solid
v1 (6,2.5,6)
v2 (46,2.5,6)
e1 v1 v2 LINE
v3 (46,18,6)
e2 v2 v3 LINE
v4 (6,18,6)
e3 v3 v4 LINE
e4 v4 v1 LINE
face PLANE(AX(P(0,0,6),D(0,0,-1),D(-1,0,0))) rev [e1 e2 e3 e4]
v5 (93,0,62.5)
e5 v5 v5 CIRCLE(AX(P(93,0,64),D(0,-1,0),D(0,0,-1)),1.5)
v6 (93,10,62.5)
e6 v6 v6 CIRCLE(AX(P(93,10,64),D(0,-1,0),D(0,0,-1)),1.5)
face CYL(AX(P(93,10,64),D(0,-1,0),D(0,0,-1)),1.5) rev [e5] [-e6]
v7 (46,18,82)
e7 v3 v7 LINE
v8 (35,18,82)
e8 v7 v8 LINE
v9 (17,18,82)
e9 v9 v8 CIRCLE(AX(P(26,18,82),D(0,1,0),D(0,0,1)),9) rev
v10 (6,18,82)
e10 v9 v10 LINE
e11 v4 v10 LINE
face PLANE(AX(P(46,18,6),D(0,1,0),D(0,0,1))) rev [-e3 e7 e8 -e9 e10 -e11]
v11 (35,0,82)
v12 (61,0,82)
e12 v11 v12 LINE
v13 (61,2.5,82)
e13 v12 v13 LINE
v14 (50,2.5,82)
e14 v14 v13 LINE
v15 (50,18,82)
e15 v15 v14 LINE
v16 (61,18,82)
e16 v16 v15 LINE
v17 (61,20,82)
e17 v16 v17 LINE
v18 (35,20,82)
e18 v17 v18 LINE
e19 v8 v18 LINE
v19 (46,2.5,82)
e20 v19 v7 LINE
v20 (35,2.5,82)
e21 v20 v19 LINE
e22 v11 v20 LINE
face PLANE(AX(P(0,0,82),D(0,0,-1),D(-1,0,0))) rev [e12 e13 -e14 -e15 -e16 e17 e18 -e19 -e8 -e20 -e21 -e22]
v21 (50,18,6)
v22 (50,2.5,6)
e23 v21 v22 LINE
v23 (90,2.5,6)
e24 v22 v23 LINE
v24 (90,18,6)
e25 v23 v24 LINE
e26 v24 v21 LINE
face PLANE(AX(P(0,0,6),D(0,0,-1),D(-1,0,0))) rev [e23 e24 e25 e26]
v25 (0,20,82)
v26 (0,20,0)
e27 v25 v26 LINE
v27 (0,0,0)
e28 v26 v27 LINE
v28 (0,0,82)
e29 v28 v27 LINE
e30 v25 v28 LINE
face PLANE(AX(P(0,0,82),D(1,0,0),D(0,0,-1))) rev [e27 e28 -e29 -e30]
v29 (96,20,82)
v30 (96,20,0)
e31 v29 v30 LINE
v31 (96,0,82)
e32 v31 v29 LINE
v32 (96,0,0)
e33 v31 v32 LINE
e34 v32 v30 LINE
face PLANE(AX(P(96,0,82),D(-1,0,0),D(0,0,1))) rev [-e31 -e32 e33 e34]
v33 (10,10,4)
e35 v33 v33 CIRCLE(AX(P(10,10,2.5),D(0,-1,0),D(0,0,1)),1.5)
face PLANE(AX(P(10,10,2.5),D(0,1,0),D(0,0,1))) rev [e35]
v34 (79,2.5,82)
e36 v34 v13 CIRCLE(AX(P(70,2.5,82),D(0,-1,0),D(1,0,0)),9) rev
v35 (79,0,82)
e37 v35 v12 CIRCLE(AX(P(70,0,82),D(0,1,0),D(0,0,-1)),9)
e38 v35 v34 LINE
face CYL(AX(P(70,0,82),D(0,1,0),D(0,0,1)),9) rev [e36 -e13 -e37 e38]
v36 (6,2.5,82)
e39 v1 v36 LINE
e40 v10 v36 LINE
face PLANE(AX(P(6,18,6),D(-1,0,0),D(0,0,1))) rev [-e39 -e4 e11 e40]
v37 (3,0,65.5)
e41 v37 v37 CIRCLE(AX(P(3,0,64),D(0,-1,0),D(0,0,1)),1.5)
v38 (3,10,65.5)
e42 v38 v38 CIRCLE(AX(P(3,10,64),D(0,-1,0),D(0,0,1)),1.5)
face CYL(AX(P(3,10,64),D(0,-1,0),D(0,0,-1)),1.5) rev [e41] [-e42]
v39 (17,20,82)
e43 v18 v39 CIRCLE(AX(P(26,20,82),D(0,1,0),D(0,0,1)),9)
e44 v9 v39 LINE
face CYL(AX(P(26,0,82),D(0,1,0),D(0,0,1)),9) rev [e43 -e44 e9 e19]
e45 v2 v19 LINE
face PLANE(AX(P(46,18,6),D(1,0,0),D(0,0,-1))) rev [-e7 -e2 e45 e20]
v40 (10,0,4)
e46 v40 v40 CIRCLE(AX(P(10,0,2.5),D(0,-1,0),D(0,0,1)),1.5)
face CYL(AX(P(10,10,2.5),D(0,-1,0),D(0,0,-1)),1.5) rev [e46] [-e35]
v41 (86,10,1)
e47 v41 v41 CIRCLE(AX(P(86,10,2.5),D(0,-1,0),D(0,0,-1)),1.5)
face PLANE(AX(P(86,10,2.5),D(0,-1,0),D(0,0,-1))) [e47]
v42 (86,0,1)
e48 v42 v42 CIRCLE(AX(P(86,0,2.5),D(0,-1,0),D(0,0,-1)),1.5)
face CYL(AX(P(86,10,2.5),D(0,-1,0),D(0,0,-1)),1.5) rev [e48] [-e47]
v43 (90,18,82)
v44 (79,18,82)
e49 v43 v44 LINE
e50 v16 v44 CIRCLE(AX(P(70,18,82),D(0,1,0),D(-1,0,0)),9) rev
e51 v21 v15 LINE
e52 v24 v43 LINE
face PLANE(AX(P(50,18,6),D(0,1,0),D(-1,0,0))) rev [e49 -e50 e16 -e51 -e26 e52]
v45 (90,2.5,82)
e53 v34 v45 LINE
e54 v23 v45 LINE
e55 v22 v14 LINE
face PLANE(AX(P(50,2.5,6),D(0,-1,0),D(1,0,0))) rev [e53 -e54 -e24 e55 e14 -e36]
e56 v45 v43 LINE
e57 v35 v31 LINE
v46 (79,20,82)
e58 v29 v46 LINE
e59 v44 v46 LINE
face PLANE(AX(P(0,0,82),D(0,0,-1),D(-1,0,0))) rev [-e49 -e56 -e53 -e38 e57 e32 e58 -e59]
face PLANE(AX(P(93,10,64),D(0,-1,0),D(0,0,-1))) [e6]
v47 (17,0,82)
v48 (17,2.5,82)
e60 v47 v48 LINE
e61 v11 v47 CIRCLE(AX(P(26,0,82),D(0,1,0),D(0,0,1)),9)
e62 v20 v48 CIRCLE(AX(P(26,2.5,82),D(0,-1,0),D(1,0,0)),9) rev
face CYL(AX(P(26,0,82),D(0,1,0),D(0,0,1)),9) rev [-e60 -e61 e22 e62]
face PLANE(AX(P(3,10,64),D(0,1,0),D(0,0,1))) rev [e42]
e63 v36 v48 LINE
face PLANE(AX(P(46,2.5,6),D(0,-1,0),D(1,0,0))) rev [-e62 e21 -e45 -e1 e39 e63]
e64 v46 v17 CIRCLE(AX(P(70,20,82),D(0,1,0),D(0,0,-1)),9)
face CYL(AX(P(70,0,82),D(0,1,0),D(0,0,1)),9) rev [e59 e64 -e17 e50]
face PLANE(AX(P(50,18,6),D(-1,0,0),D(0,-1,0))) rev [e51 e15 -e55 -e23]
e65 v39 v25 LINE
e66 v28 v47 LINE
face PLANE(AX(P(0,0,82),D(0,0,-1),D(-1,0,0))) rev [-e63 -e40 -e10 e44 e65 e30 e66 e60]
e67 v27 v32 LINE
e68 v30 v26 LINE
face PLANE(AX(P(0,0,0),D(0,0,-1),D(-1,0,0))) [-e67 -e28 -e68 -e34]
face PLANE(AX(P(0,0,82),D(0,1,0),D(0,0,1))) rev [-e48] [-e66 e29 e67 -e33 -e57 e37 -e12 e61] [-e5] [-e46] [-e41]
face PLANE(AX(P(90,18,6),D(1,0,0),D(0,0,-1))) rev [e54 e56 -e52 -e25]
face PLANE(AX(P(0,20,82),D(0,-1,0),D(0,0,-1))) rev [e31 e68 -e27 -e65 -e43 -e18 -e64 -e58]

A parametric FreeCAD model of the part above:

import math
import FreeCAD as App
import Part
import Sketcher

doc = App.newDocument("Part")
body = doc.addObject("PartDesign::Body", "Body")

# Sketch on XY plane
sketch1 = body.newObject("Sketcher::SketchObject", "Sketch")
sketch1.AttachmentSupport = (doc.getObject("XY_Plane"), [""])
sketch1.MapMode = "FlatFace"
sketch1.addGeometry(Part.LineSegment(App.Vector(0, 20, 0), App.Vector(0, 0, 0)), False)
sketch1.addGeometry(Part.LineSegment(App.Vector(0, 0, 0), App.Vector(96, 0, 0)), False)
sketch1.addGeometry(Part.LineSegment(App.Vector(96, 0, 0), App.Vector(96, 20, 0)), False)
sketch1.addGeometry(Part.LineSegment(App.Vector(96, 20, 0), App.Vector(0, 20, 0)), False)
sketch1.addConstraint(Sketcher.Constraint("Coincident", 0, 2, 1, 1))
sketch1.addConstraint(Sketcher.Constraint("Coincident", 1, 2, 2, 1))
sketch1.addConstraint(Sketcher.Constraint("Coincident", 2, 2, 3, 1))
sketch1.addConstraint(Sketcher.Constraint("Coincident", 3, 2, 0, 1))
sketch1.addConstraint(Sketcher.Constraint("Vertical", 0))
sketch1.addConstraint(Sketcher.Constraint("Horizontal", 1))
sketch1.addConstraint(Sketcher.Constraint("Vertical", 2))
sketch1.addConstraint(Sketcher.Constraint("Horizontal", 3))
sketch1.addConstraint(Sketcher.Constraint("Coincident", 0, 2, -1, 1))
sketch1.addConstraint(Sketcher.Constraint("DistanceX", 1, 1, 1, 2, 96.0))
sketch1.addConstraint(Sketcher.Constraint("DistanceY", 0, 2, 0, 1, 20.0))
pad1 = body.newObject("PartDesign::Pad", "Pad")
pad1.Profile = sketch1
pad1.Length = 82

# Sketch on XZ plane
sketch2 = body.newObject("Sketcher::SketchObject", "Sketch001")
sketch2.AttachmentSupport = (doc.getObject("XZ_Plane"), [""])
sketch2.MapMode = "FlatFace"
sketch2.AttachmentOffset = App.Placement(App.Vector(0, 0, -20), App.Rotation())
sketch2.addGeometry(Part.LineSegment(App.Vector(17, 82, 0), App.Vector(35, 82, 0)), False)
sketch2.addGeometry(Part.ArcOfCircle(Part.Circle(App.Vector(26, 82, 0), App.Vector(0, 0, 1), 9), math.radians(180), math.radians(360)), False)
sketch2.addGeometry(Part.LineSegment(App.Vector(61, 82, 0), App.Vector(79, 82, 0)), False)
sketch2.addGeometry(Part.ArcOfCircle(Part.Circle(App.Vector(70, 82, 0), App.Vector(0, 0, 1), 9), math.radians(180), math.radians(360)), False)
sketch2.addConstraint(Sketcher.Constraint("Coincident", 0, 1, 1, 1))
sketch2.addConstraint(Sketcher.Constraint("Coincident", 1, 2, 0, 2))
sketch2.addConstraint(Sketcher.Constraint("Coincident", 2, 1, 3, 1))
sketch2.addConstraint(Sketcher.Constraint("Coincident", 3, 2, 2, 2))
sketch2.addConstraint(Sketcher.Constraint("Horizontal", 0))
sketch2.addConstraint(Sketcher.Constraint("Horizontal", 2))
sketch2.addConstraint(Sketcher.Constraint("Equal", 1, 3))
sketch2.addConstraint(Sketcher.Constraint("Horizontal", 1, 3, 3, 3))
sketch2.addConstraint(Sketcher.Constraint("Horizontal", 3, 3, 0, 1))
sketch2.addConstraint(Sketcher.Constraint("Horizontal", 1, 2, 2, 1))
sketch2.addConstraint(Sketcher.Constraint("Radius", 1, 9.0))
sketch2.addConstraint(Sketcher.Constraint("DistanceX", -1, 1, 1, 3, 26.0))
sketch2.addConstraint(Sketcher.Constraint("DistanceY", -1, 1, 1, 3, 82.0))
sketch2.addConstraint(Sketcher.Constraint("DistanceX", -1, 1, 3, 3, 70.0))
pocket1 = body.newObject("PartDesign::Pocket", "Pocket")
pocket1.Profile = sketch2
pocket1.Length = 20
pocket1.Reversed = True

# Sketch on XY plane
sketch3 = body.newObject("Sketcher::SketchObject", "Sketch002")
sketch3.AttachmentSupport = (doc.getObject("XY_Plane"), [""])
sketch3.MapMode = "FlatFace"
sketch3.AttachmentOffset = App.Placement(App.Vector(0, 0, 82), App.Rotation())
sketch3.addGeometry(Part.LineSegment(App.Vector(6, 18, 0), App.Vector(6, 2, 0)), False)
sketch3.addGeometry(Part.LineSegment(App.Vector(6, 2, 0), App.Vector(46, 2, 0)), False)
sketch3.addGeometry(Part.LineSegment(App.Vector(46, 2, 0), App.Vector(46, 18, 0)), False)
sketch3.addGeometry(Part.LineSegment(App.Vector(46, 18, 0), App.Vector(6, 18, 0)), False)
sketch3.addGeometry(Part.LineSegment(App.Vector(129, 18, 0), App.Vector(129, 2, 0)), False)
sketch3.addGeometry(Part.LineSegment(App.Vector(129, 2, 0), App.Vector(169, 2, 0)), False)
sketch3.addGeometry(Part.LineSegment(App.Vector(169, 2, 0), App.Vector(169, 18, 0)), False)
sketch3.addGeometry(Part.LineSegment(App.Vector(169, 18, 0), App.Vector(129, 18, 0)), False)
sketch3.addGeometry(Part.LineSegment(App.Vector(50, 18, 0), App.Vector(50, 2, 0)), False)
sketch3.addGeometry(Part.LineSegment(App.Vector(50, 2, 0), App.Vector(90, 2, 0)), False)
sketch3.addGeometry(Part.LineSegment(App.Vector(90, 2, 0), App.Vector(90, 18, 0)), False)
sketch3.addGeometry(Part.LineSegment(App.Vector(90, 18, 0), App.Vector(50, 18, 0)), False)
sketch3.addConstraint(Sketcher.Constraint("Coincident", 0, 2, 1, 1))
sketch3.addConstraint(Sketcher.Constraint("Coincident", 1, 2, 2, 1))
sketch3.addConstraint(Sketcher.Constraint("Coincident", 2, 2, 3, 1))
sketch3.addConstraint(Sketcher.Constraint("Coincident", 3, 2, 0, 1))
sketch3.addConstraint(Sketcher.Constraint("Coincident", 4, 2, 5, 1))
sketch3.addConstraint(Sketcher.Constraint("Coincident", 5, 2, 6, 1))
sketch3.addConstraint(Sketcher.Constraint("Coincident", 6, 2, 7, 1))
sketch3.addConstraint(Sketcher.Constraint("Coincident", 7, 2, 4, 1))
sketch3.addConstraint(Sketcher.Constraint("Coincident", 8, 2, 9, 1))
sketch3.addConstraint(Sketcher.Constraint("Coincident", 9, 2, 10, 1))
sketch3.addConstraint(Sketcher.Constraint("Coincident", 10, 2, 11, 1))
sketch3.addConstraint(Sketcher.Constraint("Coincident", 11, 2, 8, 1))
sketch3.addConstraint(Sketcher.Constraint("Vertical", 0))
sketch3.addConstraint(Sketcher.Constraint("Horizontal", 1))
sketch3.addConstraint(Sketcher.Constraint("Vertical", 2))
sketch3.addConstraint(Sketcher.Constraint("Horizontal", 3))
sketch3.addConstraint(Sketcher.Constraint("Vertical", 4))
sketch3.addConstraint(Sketcher.Constraint("Horizontal", 5))
sketch3.addConstraint(Sketcher.Constraint("Vertical", 6))
sketch3.addConstraint(Sketcher.Constraint("Horizontal", 7))
sketch3.addConstraint(Sketcher.Constraint("Vertical", 8))
sketch3.addConstraint(Sketcher.Constraint("Horizontal", 9))
sketch3.addConstraint(Sketcher.Constraint("Vertical", 10))
sketch3.addConstraint(Sketcher.Constraint("Horizontal", 11))
sketch3.addConstraint(Sketcher.Constraint("Horizontal", 1, 2, 4, 2))
sketch3.addConstraint(Sketcher.Constraint("Horizontal", 3, 2, 6, 2))
sketch3.addConstraint(Sketcher.Constraint("Horizontal", 5, 2, 8, 2))
sketch3.addConstraint(Sketcher.Constraint("Horizontal", 7, 2, 10, 2))
sketch3.addConstraint(Sketcher.Constraint("Equal", 3, 5))
sketch3.addConstraint(Sketcher.Constraint("Equal", 7, 9))
sketch3.addConstraint(Sketcher.Constraint("DistanceX", 1, 1, 1, 2, 40.0))
sketch3.addConstraint(Sketcher.Constraint("DistanceY", 0, 2, 0, 1, 15.5))
sketch3.addConstraint(Sketcher.Constraint("DistanceX", -1, 1, 0, 2, 6.0))
sketch3.addConstraint(Sketcher.Constraint("DistanceY", -1, 1, 2, 2, 18.0))
sketch3.addConstraint(Sketcher.Constraint("DistanceX", -1, 1, 4, 2, 129.0))
sketch3.addConstraint(Sketcher.Constraint("DistanceX", -1, 1, 8, 2, 50.0))
pocket2 = body.newObject("PartDesign::Pocket", "Pocket001")
pocket2.Profile = sketch3
pocket2.Length = 76

# Sketch on XZ plane
sketch4 = body.newObject("Sketcher::SketchObject", "Sketch003")
sketch4.AttachmentSupport = (doc.getObject("XZ_Plane"), [""])
sketch4.MapMode = "FlatFace"
sketch4.addGeometry(Part.Circle(App.Vector(86, 2.5, 0), App.Vector(0, 0, 1), 1.5), False)
sketch4.addGeometry(Part.Circle(App.Vector(10, 2.5, 0), App.Vector(0, 0, 1), 1.5), False)
sketch4.addGeometry(Part.Circle(App.Vector(93, 64, 0), App.Vector(0, 0, 1), 1.5), False)
sketch4.addGeometry(Part.Circle(App.Vector(3, 64, 0), App.Vector(0, 0, 1), 1.5), False)
sketch4.addConstraint(Sketcher.Constraint("Equal", 0, 1))
sketch4.addConstraint(Sketcher.Constraint("Equal", 1, 2))
sketch4.addConstraint(Sketcher.Constraint("Equal", 2, 3))
sketch4.addConstraint(Sketcher.Constraint("Horizontal", 0, 3, 1, 3))
sketch4.addConstraint(Sketcher.Constraint("Horizontal", 2, 3, 3, 3))
sketch4.addConstraint(Sketcher.Constraint("Diameter", 0, 3.0))
sketch4.addConstraint(Sketcher.Constraint("DistanceX", -1, 1, 0, 3, 86.0))
sketch4.addConstraint(Sketcher.Constraint("DistanceX", -1, 1, 1, 3, 10.0))
sketch4.addConstraint(Sketcher.Constraint("DistanceX", -1, 1, 2, 3, 93.0))
sketch4.addConstraint(Sketcher.Constraint("DistanceY", -1, 1, 2, 3, 64.0))
sketch4.addConstraint(Sketcher.Constraint("DistanceX", -1, 1, 3, 3, 3.0))
sketch4.addConstraint(Sketcher.Constraint("DistanceY", -1, 1, 0, 3, 2.5))
pocket3 = body.newObject("PartDesign::Pocket", "Pocket002")
pocket3.Profile = sketch4
pocket3.Length = 10

doc.recompute()
